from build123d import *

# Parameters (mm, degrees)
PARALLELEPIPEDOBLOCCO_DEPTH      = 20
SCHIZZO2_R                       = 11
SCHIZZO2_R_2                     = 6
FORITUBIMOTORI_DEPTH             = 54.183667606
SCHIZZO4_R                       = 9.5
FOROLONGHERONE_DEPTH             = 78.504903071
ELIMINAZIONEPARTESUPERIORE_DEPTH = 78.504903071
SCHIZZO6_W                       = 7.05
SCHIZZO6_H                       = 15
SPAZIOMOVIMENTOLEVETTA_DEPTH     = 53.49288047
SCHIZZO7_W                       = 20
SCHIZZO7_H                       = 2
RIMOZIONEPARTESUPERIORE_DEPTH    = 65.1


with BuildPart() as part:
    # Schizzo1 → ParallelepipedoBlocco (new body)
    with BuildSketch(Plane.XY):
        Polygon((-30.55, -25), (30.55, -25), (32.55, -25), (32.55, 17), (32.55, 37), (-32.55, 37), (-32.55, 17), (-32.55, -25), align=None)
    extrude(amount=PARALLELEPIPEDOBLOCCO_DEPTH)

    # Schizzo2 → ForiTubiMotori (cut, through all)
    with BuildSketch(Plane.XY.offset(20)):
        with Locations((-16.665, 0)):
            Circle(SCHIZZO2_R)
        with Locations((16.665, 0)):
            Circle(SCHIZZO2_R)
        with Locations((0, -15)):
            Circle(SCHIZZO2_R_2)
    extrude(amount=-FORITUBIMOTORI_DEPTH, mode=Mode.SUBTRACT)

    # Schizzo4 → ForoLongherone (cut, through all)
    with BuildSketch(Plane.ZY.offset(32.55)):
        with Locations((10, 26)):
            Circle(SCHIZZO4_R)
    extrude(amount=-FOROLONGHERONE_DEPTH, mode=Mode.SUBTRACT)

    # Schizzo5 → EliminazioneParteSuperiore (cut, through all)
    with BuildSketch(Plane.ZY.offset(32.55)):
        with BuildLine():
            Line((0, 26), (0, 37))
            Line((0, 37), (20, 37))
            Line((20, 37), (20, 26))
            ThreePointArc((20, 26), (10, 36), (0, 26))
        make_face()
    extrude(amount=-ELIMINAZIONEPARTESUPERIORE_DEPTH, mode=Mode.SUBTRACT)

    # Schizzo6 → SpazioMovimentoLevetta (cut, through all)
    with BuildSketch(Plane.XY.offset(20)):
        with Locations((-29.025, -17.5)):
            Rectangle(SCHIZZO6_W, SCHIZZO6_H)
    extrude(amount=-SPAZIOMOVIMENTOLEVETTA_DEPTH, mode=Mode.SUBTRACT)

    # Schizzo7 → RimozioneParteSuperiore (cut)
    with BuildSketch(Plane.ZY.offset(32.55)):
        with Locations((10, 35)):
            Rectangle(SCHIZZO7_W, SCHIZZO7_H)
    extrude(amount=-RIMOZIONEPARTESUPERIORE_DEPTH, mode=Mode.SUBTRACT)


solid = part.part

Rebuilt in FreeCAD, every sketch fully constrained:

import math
import FreeCAD as App
import Part
import Sketcher
from FreeCAD import Vector

doc = App.newDocument("Part")
body = doc.addObject("PartDesign::Body", "Body")

# Sketch on XY plane
sketch1 = body.newObject("Sketcher::SketchObject", "Sketch")
sketch1.AttachmentSupport = (doc.getObject("XY_Plane"), [""])
sketch1.MapMode = "FlatFace"
sketch1.addGeometry(Part.LineSegment(Vector(33, -25, 0), Vector(33, 37, 0)), False)
sketch1.addGeometry(Part.LineSegment(Vector(33, 37, 0), Vector(-33, 37, 0)), False)
sketch1.addGeometry(Part.LineSegment(Vector(-33, 37, 0), Vector(-33, -25, 0)), False)
sketch1.addGeometry(Part.LineSegment(Vector(-33, -25, 0), Vector(33, -25, 0)), False)
sketch1.addConstraint(Sketcher.Constraint("Coincident", 0, 2, 1, 1))
sketch1.addConstraint(Sketcher.Constraint("Coincident", 1, 2, 2, 1))
sketch1.addConstraint(Sketcher.Constraint("Coincident", 2, 2, 3, 1))
sketch1.addConstraint(Sketcher.Constraint("Coincident", 3, 2, 0, 1))
sketch1.addConstraint(Sketcher.Constraint("Vertical", 0))
sketch1.addConstraint(Sketcher.Constraint("Horizontal", 1))
sketch1.addConstraint(Sketcher.Constraint("Vertical", 2))
sketch1.addConstraint(Sketcher.Constraint("Horizontal", 3))
sketch1.addConstraint(Sketcher.Constraint("DistanceY", 0, 1, 0, 2, 62.0))
sketch1.addConstraint(Sketcher.Constraint("DistanceX", 1, 2, 1, 1, 65.1))
sketch1.addConstraint(Sketcher.Constraint("DistanceY", -1, 1, 0, 2, 37.0))
sketch1.addConstraint(Sketcher.Constraint("DistanceX", -1, 1, 0, 2, 32.55))
pad1 = body.newObject("PartDesign::Pad", "Pad")
pad1.Profile = sketch1
pad1.Length = 20

# Sketch on XY plane
sketch2 = body.newObject("Sketcher::SketchObject", "Sketch001")
sketch2.AttachmentSupport = (doc.getObject("XY_Plane"), [""])
sketch2.MapMode = "FlatFace"
sketch2.AttachmentOffset = App.Placement(Vector(0, 0, 20), App.Rotation())
sketch2.addGeometry(Part.Circle(Vector(-17, 0, 0), Vector(0, 0, 1), 11), False)
sketch2.addGeometry(Part.Circle(Vector(17, 0, 0), Vector(0, 0, 1), 11), False)
sketch2.addGeometry(Part.Circle(Vector(0, -15, 0), Vector(0, 0, 1), 6), False)
sketch2.addConstraint(Sketcher.Constraint("Equal", 0, 1))
sketch2.addConstraint(Sketcher.Constraint("Symmetric", 0, 3, 1, 3, -1, 1))
sketch2.addConstraint(Sketcher.Constraint("PointOnObject", 0, 3, -1))
sketch2.addConstraint(Sketcher.Constraint("PointOnObject", 2, 3, -2))
sketch2.addConstraint(Sketcher.Constraint("Diameter", 0, 22.0))
sketch2.addConstraint(Sketcher.Constraint("Diameter", 2, 12.0))
sketch2.addConstraint(Sketcher.Constraint("DistanceY", 2, 3, -1, 1, 15.0))
sketch2.addConstraint(Sketcher.Constraint("DistanceX", 0, 3, 1, 3, 33.33))
pocket1 = body.newObject("PartDesign::Pocket", "Pocket")
pocket1.Profile = sketch2
pocket1.Type = "ThroughAll"

# Sketch on YZ plane
sketch3 = body.newObject("Sketcher::SketchObject", "Sketch002")
sketch3.AttachmentSupport = (doc.getObject("YZ_Plane"), [""])
sketch3.MapMode = "FlatFace"
sketch3.AttachmentOffset = App.Placement(Vector(0, 0, -32.55), App.Rotation())
sketch3.addGeometry(Part.Circle(Vector(26, 10, 0), Vector(0, 0, 1), 10), False)
sketch3.addConstraint(Sketcher.Constraint("Diameter", 0, 19.0))
sketch3.addConstraint(Sketcher.Constraint("DistanceX", -1, 1, 0, 3, 26.0))
sketch3.addConstraint(Sketcher.Constraint("DistanceY", -1, 1, 0, 3, 10.0))
pocket2 = body.newObject("PartDesign::Pocket", "Pocket001")
pocket2.Profile = sketch3
pocket2.Type = "ThroughAll"
pocket2.Reversed = True

# Sketch on YZ plane
sketch4 = body.newObject("Sketcher::SketchObject", "Sketch003")
sketch4.AttachmentSupport = (doc.getObject("YZ_Plane"), [""])
sketch4.MapMode = "FlatFace"
sketch4.AttachmentOffset = App.Placement(Vector(0, 0, -32.55), App.Rotation())
sketch4.addGeometry(Part.LineSegment(Vector(37, 0, 0), Vector(26, 0, 0)), False)
sketch4.addGeometry(Part.ArcOfCircle(Part.Circle(Vector(26, 10, 0), Vector(0, 0, 1), 10), math.radians(-90), math.radians(90)), False)
sketch4.addGeometry(Part.LineSegment(Vector(26, 20, 0), Vector(37, 20, 0)), False)
sketch4.addGeometry(Part.LineSegment(Vector(37, 20, 0), Vector(37, 0, 0)), False)
sketch4.addConstraint(Sketcher.Constraint("Tangent", 0, 2, 1, 1))
sketch4.addConstraint(Sketcher.Constraint("Tangent", 1, 2, 2, 1))
sketch4.addConstraint(Sketcher.Constraint("Coincident", 2, 2, 3, 1))
sketch4.addConstraint(Sketcher.Constraint("Coincident", 3, 2, 0, 1))
sketch4.addConstraint(Sketcher.Constraint("Horizontal", 0))
sketch4.addConstraint(Sketcher.Constraint("Horizontal", 2))
sketch4.addConstraint(Sketcher.Constraint("Vertical", 3))
sketch4.addConstraint(Sketcher.Constraint("PointOnObject", 0, 2, -1))
sketch4.addConstraint(Sketcher.Constraint("Radius", 1, 10.0))
sketch4.addConstraint(Sketcher.Constraint("DistanceX", 0, 2, 0, 1, 11.0))
sketch4.addConstraint(Sketcher.Constraint("DistanceX", -1, 1, 1, 3, 26.0))
pocket3 = body.newObject("PartDesign::Pocket", "Pocket002")
pocket3.Profile = sketch4
pocket3.Type = "ThroughAll"
pocket3.Reversed = True

# Sketch on XY plane
sketch5 = body.newObject("Sketcher::SketchObject", "Sketch004")
sketch5.AttachmentSupport = (doc.getObject("XY_Plane"), [""])
sketch5.MapMode = "FlatFace"
sketch5.AttachmentOffset = App.Placement(Vector(0, 0, 20), App.Rotation())
sketch5.addGeometry(Part.LineSegment(Vector(-33, -10, 0), Vector(-33, -25, 0)), False)
sketch5.addGeometry(Part.LineSegment(Vector(-33, -25, 0), Vector(-26, -25, 0)), False)
sketch5.addGeometry(Part.LineSegment(Vector(-26, -25, 0), Vector(-26, -10, 0)), False)
sketch5.addGeometry(Part.LineSegment(Vector(-26, -10, 0), Vector(-33, -10, 0)), False)
sketch5.addConstraint(Sketcher.Constraint("Coincident", 0, 2, 1, 1))
sketch5.addConstraint(Sketcher.Constraint("Coincident", 1, 2, 2, 1))
sketch5.addConstraint(Sketcher.Constraint("Coincident", 2, 2, 3, 1))
sketch5.addConstraint(Sketcher.Constraint("Coincident", 3, 2, 0, 1))
sketch5.addConstraint(Sketcher.Constraint("Vertical", 0))
sketch5.addConstraint(Sketcher.Constraint("Horizontal", 1))
sketch5.addConstraint(Sketcher.Constraint("Vertical", 2))
sketch5.addConstraint(Sketcher.Constraint("Horizontal", 3))
sketch5.addConstraint(Sketcher.Constraint("DistanceY", 0, 2, 0, 1, 15.0))
sketch5.addConstraint(Sketcher.Constraint("DistanceY", 0, 2, -1, 1, 25.0))
sketch5.addConstraint(Sketcher.Constraint("DistanceX", 1, 1, 1, 2, 7.05))
sketch5.addConstraint(Sketcher.Constraint("DistanceX", 1, 2, -1, 1, 25.5))
pocket4 = body.newObject("PartDesign::Pocket", "Pocket003")
pocket4.Profile = sketch5
pocket4.Type = "ThroughAll"

# Sketch on YZ plane
sketch6 = body.newObject("Sketcher::SketchObject", "Sketch005")
sketch6.AttachmentSupport = (doc.getObject("YZ_Plane"), [""])
sketch6.MapMode = "FlatFace"
sketch6.AttachmentOffset = App.Placement(Vector(0, 0, -32.55), App.Rotation())
sketch6.addGeometry(Part.LineSegment(Vector(36, 0, 0), Vector(34, 0, 0)), False)
sketch6.addGeometry(Part.LineSegment(Vector(34, 0, 0), Vector(34, 20, 0)), False)
sketch6.addGeometry(Part.LineSegment(Vector(34, 20, 0), Vector(36, 20, 0)), False)
sketch6.addGeometry(Part.LineSegment(Vector(36, 20, 0), Vector(36, 0, 0)), False)
sketch6.addConstraint(Sketcher.Constraint("Coincident", 0, 2, 1, 1))
sketch6.addConstraint(Sketcher.Constraint("Coincident", 1, 2, 2, 1))
sketch6.addConstraint(Sketcher.Constraint("Coincident", 2, 2, 3, 1))
sketch6.addConstraint(Sketcher.Constraint("Coincident", 3, 2, 0, 1))
sketch6.addConstraint(Sketcher.Constraint("Horizontal", 0))
sketch6.addConstraint(Sketcher.Constraint("Vertical", 1))
sketch6.addConstraint(Sketcher.Constraint("Horizontal", 2))
sketch6.addConstraint(Sketcher.Constraint("Vertical", 3))
sketch6.addConstraint(Sketcher.Constraint("PointOnObject", 0, 2, -1))
sketch6.addConstraint(Sketcher.Constraint("DistanceX", 0, 2, 0, 1, 2.0))
sketch6.addConstraint(Sketcher.Constraint("DistanceY", 1, 1, 1, 2, 20.0))
sketch6.addConstraint(Sketcher.Constraint("DistanceX", -1, 1, 0, 2, 34.0))
pocket5 = body.newObject("PartDesign::Pocket", "Pocket004")
pocket5.Profile = sketch6
pocket5.Length = 65.1
pocket5.Reversed = True

doc.recompute()
